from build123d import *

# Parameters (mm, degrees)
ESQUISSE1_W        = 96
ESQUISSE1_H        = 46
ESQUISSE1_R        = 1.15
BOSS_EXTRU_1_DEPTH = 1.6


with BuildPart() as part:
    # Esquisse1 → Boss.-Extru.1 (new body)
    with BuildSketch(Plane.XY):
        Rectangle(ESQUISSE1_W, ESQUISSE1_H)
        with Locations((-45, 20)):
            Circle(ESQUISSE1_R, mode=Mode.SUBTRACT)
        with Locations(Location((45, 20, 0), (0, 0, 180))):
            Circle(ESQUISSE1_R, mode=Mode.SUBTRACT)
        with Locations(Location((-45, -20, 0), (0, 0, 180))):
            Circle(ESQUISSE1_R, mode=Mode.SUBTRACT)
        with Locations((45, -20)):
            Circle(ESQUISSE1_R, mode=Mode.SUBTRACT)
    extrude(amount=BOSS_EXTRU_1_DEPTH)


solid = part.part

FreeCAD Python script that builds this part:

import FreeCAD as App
import Part
import Sketcher
from FreeCAD import Vector

doc = App.newDocument("Part")
body = doc.addObject("PartDesign::Body", "Body")

# Sketch on XY plane
sketch1 = doc.addObject("Sketcher::SketchObject", "Sketch")
body.addObject(sketch1)
sketch1.AttachmentSupport = (doc.XY_Plane, [""])
sketch1.MapMode = "FlatFace"
sketch1.addGeometry(Part.LineSegment(Vector(-48, 23, 0), Vector(-48, -23, 0)), False)
sketch1.addGeometry(Part.LineSegment(Vector(-48, -23, 0), Vector(48, -23, 0)), False)
sketch1.addGeometry(Part.LineSegment(Vector(48, -23, 0), Vector(48, 23, 0)), False)
sketch1.addGeometry(Part.LineSegment(Vector(48, 23, 0), Vector(-48, 23, 0)), False)
sketch1.addGeometry(Part.Circle(Vector(-45, -20, 0), Vector(0, 0, 1), 1.1), False)
sketch1.addGeometry(Part.Circle(Vector(45, -20, 0), Vector(0, 0, 1), 1.1), False)
sketch1.addGeometry(Part.Circle(Vector(-45, 20, 0), Vector(0, 0, 1), 1.1), False)
sketch1.addGeometry(Part.Circle(Vector(45, 20, 0), Vector(0, 0, 1), 1.1), False)
sketch1.addConstraint(Sketcher.Constraint("Coincident", 0, 2, 1, 1))
sketch1.addConstraint(Sketcher.Constraint("Coincident", 1, 2, 2, 1))
sketch1.addConstraint(Sketcher.Constraint("Coincident", 2, 2, 3, 1))
sketch1.addConstraint(Sketcher.Constraint("Coincident", 3, 2, 0, 1))
sketch1.addConstraint(Sketcher.Constraint("Vertical", 0))
sketch1.addConstraint(Sketcher.Constraint("Horizontal", 1))
sketch1.addConstraint(Sketcher.Constraint("Vertical", 2))
sketch1.addConstraint(Sketcher.Constraint("Horizontal", 3))
sketch1.addConstraint(Sketcher.Constraint("Equal", 4, 5))
sketch1.addConstraint(Sketcher.Constraint("Equal", 5, 6))
sketch1.addConstraint(Sketcher.Constraint("Equal", 6, 7))
sketch1.addConstraint(Sketcher.Constraint("Symmetric", 5, 3, 6, 3, -1, 1))
sketch1.addConstraint(Sketcher.Constraint("Symmetric", 4, 3, 7, 3, -1, 1))
sketch1.addConstraint(Sketcher.Constraint("Symmetric", 0, 2, 2, 2, -1, 1))
sketch1.addConstraint(Sketcher.Constraint("Symmetric", 4, 3, 5, 3, -2))
sketch1.addConstraint(Sketcher.Constraint("Diameter", 4, 2.3))
sketch1.addConstraint(Sketcher.Constraint("DistanceX", 1, 1, 1, 2, 96.0))
sketch1.addConstraint(Sketcher.Constraint("DistanceY", 0, 2, 0, 1, 46.0))
sketch1.addConstraint(Sketcher.Constraint("DistanceX", 4, 3, -1, 1, 45.0))
sketch1.addConstraint(Sketcher.Constraint("DistanceY", 4, 3, -1, 1, 20.0))
pad1 = doc.addObject("PartDesign::Pad", "Pad")
body.addObject(pad1)
pad1.Profile = sketch1
pad1.Length = 1.6

doc.recompute()
